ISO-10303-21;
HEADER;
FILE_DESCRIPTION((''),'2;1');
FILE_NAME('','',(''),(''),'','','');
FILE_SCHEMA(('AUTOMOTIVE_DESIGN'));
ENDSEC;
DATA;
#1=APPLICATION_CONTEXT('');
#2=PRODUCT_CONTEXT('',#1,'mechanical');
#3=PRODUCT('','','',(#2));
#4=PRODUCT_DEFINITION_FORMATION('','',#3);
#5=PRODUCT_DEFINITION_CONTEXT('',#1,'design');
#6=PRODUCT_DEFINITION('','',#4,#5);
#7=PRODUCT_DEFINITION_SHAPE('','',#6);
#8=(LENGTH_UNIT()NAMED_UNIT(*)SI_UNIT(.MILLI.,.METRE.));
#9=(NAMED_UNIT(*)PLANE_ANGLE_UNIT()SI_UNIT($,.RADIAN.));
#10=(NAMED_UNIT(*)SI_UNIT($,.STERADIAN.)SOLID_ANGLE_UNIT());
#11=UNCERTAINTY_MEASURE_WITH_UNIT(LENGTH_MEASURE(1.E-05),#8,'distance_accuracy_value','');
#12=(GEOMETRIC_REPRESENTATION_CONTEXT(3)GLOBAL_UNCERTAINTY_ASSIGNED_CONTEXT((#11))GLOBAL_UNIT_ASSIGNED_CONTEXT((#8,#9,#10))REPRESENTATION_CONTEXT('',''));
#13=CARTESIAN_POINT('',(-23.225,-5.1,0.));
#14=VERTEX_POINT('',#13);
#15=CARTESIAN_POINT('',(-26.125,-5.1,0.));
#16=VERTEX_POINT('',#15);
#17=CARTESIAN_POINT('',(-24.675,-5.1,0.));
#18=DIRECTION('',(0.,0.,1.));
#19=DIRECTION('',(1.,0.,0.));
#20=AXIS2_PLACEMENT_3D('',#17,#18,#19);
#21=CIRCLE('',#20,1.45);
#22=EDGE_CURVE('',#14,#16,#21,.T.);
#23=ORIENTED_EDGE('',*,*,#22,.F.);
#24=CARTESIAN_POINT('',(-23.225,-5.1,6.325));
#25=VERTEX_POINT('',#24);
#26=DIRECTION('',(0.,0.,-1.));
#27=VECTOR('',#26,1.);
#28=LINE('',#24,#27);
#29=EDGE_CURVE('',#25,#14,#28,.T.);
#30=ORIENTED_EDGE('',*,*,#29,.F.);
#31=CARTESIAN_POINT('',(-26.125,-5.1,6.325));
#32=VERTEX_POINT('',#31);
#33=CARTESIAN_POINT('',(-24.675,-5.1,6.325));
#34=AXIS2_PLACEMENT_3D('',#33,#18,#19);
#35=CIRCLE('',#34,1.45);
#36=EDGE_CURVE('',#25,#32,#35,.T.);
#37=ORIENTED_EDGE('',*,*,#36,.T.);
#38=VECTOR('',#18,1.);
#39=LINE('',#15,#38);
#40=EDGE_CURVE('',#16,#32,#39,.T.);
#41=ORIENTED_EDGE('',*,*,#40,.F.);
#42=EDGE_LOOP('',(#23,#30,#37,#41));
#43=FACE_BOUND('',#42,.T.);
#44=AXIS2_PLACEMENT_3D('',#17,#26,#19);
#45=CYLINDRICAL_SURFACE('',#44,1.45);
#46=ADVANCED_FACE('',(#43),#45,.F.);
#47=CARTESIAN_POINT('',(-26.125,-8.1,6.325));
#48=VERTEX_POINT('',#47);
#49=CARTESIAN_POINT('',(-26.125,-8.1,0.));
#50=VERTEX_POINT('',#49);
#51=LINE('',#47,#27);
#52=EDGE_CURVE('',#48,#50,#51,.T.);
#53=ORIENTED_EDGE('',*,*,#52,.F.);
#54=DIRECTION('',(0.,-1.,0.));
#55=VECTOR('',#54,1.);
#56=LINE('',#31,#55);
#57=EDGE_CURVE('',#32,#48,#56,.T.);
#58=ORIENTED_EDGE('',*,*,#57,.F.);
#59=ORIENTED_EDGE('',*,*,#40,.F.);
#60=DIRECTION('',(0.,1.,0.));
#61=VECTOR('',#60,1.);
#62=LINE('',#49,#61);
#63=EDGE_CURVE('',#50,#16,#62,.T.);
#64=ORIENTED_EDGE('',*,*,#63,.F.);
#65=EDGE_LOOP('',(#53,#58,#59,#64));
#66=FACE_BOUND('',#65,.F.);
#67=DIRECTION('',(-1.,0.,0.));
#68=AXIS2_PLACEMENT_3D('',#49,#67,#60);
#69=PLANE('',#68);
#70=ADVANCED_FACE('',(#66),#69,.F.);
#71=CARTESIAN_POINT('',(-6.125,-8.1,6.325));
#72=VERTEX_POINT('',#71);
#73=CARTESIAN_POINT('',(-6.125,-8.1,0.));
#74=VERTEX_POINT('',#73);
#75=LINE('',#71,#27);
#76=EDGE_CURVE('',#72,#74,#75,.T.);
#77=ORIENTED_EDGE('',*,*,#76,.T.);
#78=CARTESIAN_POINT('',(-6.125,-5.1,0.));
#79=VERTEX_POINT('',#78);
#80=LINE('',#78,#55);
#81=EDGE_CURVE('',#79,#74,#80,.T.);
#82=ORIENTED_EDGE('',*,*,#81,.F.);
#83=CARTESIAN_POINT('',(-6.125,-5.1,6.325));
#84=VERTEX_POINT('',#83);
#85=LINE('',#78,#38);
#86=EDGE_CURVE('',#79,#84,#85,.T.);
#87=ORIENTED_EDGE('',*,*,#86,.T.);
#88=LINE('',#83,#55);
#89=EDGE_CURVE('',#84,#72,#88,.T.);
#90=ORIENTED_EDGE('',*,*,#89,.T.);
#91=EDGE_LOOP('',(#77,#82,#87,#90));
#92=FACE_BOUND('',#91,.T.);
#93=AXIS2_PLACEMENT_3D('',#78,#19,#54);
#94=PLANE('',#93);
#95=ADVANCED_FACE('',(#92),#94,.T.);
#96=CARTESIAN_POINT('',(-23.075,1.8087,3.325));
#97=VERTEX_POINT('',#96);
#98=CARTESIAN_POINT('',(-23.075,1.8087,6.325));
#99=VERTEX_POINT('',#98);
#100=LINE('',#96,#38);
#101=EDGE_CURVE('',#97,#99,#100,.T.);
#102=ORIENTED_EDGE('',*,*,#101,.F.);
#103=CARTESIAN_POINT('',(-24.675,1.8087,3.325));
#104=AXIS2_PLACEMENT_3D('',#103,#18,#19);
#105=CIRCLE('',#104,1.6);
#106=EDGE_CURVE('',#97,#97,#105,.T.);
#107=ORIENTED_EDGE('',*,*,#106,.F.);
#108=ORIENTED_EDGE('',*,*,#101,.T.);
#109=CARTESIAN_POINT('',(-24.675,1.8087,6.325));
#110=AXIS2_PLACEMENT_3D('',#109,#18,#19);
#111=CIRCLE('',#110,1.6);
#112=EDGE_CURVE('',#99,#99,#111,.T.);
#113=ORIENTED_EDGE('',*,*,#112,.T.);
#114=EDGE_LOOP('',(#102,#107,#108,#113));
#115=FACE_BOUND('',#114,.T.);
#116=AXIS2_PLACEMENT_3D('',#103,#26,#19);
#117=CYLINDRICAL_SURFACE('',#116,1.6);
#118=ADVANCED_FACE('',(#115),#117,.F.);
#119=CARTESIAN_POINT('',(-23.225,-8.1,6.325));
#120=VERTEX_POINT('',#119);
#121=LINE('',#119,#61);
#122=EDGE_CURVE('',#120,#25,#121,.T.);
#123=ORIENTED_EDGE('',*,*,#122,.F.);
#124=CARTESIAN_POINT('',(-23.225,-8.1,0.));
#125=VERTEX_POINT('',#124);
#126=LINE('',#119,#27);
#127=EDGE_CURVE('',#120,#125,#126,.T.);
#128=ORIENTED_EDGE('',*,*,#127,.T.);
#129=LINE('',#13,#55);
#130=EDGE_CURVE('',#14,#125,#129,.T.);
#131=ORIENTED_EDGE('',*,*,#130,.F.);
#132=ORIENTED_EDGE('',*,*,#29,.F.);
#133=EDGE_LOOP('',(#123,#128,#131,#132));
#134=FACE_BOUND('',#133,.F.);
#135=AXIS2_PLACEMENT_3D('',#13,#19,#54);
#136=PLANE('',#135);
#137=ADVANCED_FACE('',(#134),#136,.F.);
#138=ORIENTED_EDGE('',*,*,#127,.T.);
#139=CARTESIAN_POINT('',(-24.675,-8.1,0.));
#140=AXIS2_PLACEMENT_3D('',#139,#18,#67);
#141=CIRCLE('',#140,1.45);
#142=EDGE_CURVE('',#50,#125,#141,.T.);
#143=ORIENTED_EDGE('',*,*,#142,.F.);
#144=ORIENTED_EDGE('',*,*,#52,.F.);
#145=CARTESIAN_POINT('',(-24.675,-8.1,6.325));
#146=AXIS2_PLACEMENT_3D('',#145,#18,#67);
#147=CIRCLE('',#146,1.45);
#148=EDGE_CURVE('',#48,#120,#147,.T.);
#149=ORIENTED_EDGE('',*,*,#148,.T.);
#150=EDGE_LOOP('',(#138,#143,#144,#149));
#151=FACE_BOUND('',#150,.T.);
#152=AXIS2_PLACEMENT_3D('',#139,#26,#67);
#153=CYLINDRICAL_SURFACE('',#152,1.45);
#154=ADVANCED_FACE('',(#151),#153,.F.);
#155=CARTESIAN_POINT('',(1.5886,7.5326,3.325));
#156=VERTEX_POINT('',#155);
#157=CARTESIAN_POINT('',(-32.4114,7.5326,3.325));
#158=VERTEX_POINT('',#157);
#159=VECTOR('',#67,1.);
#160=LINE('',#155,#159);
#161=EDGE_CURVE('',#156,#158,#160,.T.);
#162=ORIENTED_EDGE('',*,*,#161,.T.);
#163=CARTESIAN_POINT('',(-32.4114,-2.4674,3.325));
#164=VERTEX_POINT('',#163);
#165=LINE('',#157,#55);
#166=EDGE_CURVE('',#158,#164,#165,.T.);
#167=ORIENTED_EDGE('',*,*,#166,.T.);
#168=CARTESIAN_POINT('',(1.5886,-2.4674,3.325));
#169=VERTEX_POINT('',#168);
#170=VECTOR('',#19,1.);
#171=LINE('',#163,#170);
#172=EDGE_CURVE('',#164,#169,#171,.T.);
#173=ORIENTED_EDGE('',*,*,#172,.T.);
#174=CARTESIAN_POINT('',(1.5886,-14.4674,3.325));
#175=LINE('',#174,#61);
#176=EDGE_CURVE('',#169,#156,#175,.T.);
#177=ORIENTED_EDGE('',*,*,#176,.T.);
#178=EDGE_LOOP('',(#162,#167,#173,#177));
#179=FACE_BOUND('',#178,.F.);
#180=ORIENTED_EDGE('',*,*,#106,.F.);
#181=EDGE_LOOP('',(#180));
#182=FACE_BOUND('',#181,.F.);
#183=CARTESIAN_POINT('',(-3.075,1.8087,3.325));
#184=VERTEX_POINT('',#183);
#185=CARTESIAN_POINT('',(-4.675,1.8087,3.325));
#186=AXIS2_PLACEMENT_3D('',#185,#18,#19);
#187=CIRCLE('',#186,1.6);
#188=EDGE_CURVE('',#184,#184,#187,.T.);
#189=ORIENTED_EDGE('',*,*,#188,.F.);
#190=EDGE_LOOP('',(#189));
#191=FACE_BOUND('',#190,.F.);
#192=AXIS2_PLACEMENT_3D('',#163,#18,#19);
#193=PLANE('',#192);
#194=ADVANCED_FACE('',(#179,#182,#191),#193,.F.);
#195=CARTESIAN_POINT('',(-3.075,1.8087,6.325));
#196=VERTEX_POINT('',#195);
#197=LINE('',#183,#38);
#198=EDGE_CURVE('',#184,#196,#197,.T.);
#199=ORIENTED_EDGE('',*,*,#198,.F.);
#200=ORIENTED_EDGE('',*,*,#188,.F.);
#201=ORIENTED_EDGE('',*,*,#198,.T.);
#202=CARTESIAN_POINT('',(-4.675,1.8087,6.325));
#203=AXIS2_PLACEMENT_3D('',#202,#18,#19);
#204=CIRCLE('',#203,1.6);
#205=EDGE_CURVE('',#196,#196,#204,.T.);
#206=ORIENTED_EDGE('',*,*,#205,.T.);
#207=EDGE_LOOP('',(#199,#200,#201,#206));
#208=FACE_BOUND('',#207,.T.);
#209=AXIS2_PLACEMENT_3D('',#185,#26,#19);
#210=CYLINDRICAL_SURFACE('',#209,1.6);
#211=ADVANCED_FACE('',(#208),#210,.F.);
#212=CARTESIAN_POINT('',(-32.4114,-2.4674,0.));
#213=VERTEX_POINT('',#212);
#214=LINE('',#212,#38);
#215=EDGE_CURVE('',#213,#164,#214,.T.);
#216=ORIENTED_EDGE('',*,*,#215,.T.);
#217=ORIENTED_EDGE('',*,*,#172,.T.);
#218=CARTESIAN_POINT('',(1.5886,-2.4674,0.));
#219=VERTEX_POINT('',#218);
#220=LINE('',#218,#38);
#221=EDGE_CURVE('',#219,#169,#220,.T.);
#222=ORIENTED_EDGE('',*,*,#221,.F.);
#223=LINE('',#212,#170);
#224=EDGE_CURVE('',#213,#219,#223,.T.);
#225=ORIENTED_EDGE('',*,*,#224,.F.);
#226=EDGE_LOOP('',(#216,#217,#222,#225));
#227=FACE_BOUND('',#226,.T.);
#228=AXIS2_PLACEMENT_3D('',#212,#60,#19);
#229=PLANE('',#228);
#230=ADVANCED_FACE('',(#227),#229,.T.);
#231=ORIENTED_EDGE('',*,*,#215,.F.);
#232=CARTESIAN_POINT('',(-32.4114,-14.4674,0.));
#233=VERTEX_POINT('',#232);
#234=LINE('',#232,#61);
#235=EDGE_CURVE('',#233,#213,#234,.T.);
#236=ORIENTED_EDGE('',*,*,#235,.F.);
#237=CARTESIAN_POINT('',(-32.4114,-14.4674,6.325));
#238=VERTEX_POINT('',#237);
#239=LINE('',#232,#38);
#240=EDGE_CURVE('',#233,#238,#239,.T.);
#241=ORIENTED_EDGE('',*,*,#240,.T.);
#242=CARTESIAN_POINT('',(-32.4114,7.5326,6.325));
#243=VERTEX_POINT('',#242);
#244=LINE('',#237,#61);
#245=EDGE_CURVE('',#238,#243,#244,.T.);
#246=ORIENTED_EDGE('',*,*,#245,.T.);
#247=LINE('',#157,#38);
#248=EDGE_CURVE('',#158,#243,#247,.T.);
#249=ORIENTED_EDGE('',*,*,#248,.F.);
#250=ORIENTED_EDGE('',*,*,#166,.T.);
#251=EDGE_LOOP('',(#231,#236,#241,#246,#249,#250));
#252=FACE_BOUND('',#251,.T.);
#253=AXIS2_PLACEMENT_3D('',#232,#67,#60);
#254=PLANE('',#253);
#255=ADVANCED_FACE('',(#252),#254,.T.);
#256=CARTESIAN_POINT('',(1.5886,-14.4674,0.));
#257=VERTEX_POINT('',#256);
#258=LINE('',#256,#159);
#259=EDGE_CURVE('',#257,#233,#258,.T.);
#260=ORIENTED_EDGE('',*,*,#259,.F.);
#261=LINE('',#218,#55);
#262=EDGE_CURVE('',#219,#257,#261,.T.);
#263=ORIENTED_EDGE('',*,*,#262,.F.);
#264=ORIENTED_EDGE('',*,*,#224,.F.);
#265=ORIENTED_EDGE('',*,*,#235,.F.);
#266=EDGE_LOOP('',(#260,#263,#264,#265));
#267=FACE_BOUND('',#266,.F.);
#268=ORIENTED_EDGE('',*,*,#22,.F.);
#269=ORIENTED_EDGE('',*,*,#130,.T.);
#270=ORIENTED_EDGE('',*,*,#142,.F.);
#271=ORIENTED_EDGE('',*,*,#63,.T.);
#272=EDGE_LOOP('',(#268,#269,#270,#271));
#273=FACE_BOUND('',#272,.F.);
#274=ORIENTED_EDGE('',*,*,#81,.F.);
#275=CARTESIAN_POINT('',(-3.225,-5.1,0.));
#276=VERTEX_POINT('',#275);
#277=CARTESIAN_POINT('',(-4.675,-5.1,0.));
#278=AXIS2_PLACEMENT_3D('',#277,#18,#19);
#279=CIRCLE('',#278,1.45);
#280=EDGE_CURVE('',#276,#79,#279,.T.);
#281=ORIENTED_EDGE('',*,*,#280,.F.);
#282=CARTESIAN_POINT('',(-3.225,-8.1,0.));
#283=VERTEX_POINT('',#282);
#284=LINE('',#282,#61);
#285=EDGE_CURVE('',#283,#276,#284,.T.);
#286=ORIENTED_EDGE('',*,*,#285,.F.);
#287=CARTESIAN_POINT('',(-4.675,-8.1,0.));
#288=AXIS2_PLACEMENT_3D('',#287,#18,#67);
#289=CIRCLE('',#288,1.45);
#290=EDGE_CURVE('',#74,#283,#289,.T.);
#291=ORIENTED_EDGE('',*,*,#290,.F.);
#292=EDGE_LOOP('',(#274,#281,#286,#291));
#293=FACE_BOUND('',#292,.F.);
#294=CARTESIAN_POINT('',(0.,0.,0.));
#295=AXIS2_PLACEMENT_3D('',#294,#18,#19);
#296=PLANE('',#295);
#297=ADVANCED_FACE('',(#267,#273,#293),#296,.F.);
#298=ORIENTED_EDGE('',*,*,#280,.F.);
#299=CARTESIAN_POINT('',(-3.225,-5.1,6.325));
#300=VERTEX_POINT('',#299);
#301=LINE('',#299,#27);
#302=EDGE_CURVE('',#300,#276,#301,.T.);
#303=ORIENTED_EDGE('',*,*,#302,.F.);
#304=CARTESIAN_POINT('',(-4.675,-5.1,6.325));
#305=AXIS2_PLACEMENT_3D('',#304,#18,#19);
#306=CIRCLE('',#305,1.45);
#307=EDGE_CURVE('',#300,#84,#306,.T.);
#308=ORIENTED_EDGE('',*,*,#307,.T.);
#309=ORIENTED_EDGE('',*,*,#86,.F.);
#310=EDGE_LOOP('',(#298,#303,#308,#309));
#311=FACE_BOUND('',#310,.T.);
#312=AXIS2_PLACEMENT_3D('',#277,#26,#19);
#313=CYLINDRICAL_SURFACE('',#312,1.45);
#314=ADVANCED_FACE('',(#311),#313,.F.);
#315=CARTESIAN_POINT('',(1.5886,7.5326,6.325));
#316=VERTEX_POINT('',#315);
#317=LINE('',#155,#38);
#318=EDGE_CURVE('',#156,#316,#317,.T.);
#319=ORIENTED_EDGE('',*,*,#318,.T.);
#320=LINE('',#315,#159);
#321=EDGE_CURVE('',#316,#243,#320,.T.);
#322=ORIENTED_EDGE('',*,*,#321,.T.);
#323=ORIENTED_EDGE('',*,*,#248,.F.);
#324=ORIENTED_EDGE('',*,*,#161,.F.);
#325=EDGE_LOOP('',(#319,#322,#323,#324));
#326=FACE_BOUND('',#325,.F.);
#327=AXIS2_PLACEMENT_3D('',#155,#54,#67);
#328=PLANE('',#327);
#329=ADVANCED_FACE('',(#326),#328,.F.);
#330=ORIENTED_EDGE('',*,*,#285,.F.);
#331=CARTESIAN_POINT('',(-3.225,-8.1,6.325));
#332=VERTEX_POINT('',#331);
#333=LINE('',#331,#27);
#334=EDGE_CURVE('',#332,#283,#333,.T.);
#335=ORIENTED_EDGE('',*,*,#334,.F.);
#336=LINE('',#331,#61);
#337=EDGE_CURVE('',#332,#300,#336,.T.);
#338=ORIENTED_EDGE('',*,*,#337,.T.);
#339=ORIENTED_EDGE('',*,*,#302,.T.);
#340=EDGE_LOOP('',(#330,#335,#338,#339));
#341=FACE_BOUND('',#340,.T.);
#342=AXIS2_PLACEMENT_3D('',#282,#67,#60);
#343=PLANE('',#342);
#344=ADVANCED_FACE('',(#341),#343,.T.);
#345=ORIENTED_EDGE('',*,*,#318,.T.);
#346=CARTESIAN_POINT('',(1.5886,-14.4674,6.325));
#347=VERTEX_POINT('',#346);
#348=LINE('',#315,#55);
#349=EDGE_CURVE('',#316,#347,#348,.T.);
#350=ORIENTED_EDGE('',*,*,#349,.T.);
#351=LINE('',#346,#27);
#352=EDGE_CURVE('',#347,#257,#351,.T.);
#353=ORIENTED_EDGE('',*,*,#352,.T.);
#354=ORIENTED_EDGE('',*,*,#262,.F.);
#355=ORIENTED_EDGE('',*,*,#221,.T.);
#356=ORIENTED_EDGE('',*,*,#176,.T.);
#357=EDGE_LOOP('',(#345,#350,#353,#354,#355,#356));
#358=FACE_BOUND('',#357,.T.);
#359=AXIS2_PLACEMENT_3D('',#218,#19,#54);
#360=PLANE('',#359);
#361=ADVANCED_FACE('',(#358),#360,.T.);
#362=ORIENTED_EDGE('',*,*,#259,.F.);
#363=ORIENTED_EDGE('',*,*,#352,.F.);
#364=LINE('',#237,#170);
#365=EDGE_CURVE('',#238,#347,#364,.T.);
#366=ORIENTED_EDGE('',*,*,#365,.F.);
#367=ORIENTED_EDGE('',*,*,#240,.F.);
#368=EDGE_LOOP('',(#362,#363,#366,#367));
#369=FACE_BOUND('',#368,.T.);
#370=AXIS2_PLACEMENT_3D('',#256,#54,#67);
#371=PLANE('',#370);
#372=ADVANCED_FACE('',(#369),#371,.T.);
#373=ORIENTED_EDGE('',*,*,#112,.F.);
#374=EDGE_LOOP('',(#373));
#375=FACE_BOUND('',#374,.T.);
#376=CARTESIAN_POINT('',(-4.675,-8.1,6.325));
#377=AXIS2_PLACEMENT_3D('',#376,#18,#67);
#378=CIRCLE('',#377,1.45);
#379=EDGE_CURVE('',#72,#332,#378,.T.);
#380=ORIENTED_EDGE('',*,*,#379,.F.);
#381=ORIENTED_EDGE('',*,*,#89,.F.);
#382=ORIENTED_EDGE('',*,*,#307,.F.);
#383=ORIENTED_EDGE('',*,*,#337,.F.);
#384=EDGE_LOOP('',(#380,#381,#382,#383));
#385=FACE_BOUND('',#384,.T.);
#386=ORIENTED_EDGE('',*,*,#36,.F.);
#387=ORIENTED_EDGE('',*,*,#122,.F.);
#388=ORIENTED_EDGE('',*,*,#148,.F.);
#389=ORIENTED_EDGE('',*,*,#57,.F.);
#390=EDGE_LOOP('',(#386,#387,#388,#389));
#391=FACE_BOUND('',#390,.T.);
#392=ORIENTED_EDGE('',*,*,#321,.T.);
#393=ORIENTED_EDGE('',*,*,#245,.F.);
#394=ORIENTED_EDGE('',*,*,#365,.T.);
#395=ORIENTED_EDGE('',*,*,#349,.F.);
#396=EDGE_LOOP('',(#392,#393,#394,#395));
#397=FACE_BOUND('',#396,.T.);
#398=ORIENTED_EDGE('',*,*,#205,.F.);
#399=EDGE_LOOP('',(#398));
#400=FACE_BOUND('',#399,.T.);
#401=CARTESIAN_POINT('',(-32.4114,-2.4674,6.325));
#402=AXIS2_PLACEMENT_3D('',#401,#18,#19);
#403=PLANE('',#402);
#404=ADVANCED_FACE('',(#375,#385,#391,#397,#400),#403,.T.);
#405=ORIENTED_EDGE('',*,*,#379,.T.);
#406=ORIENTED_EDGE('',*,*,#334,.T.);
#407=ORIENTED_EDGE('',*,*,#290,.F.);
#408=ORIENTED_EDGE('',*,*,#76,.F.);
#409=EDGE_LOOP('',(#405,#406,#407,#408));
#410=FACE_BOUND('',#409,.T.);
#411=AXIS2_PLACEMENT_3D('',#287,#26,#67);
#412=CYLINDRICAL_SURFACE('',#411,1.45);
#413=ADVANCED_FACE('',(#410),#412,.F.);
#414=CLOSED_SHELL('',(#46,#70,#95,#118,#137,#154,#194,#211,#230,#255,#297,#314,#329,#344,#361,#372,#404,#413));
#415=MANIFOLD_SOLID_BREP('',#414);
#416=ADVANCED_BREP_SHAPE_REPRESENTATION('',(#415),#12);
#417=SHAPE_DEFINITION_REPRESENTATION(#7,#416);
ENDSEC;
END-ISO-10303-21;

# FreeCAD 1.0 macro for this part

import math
import FreeCAD as App
import Part
import Sketcher
Q = App.Units.Quantity

doc = App.newDocument("Part")
body = doc.addObject("PartDesign::Body", "Body")

# Sketch on XY plane
sketch1 = body.newObject("Sketcher::SketchObject", "Sketch")
sketch1.AttachmentSupport = (doc.getObject("XY_Plane"), [""])
sketch1.MapMode = "FlatFace"
sketch1.addGeometry([
    Part.LineSegment(App.Vector(1.5886, -2.4674, 0), App.Vector(-32.4114, -2.4674, 0)),  # 0
    Part.LineSegment(App.Vector(-32.4114, -2.4674, 0), App.Vector(-32.4114, -14.4674, 0)),  # 1
    Part.LineSegment(App.Vector(-32.4114, -14.4674, 0), App.Vector(1.5886, -14.4674, 0)),  # 2
    Part.LineSegment(App.Vector(1.5886, -14.4674, 0), App.Vector(1.5886, -2.4674, 0)),  # 3
    Part.LineSegment(App.Vector(-26.125, -8.1, 0), App.Vector(-26.125, -5.1, 0)),  # 4
    Part.ArcOfCircle(Part.Circle(App.Vector(-24.675, -5.1, 0), App.Vector(0, 0, 1), 1.45), math.radians(0), math.radians(180)),  # 5
    Part.LineSegment(App.Vector(-23.225, -5.1, 0), App.Vector(-23.225, -8.1, 0)),  # 6
    Part.ArcOfCircle(Part.Circle(App.Vector(-24.675, -8.1, 0), App.Vector(0, 0, 1), 1.45), math.radians(180), math.radians(360)),  # 7
    Part.LineSegment(App.Vector(-6.125, -8.1, 0), App.Vector(-6.125, -5.1, 0)),  # 8
    Part.ArcOfCircle(Part.Circle(App.Vector(-4.675, -5.1, 0), App.Vector(0, 0, 1), 1.45), math.radians(0), math.radians(180)),  # 9
    Part.LineSegment(App.Vector(-3.225, -5.1, 0), App.Vector(-3.225, -8.1, 0)),  # 10
    Part.ArcOfCircle(Part.Circle(App.Vector(-4.675, -8.1, 0), App.Vector(0, 0, 1), 1.45), math.radians(180), math.radians(360)),  # 11
], False)
sketch1.addConstraint([
    Sketcher.Constraint("Coincident", 0, 2, 1, 1),
    Sketcher.Constraint("Coincident", 1, 2, 2, 1),
    Sketcher.Constraint("Coincident", 2, 2, 3, 1),
    Sketcher.Constraint("Coincident", 3, 2, 0, 1),
    Sketcher.Constraint("Tangent", 4, 2, 5, 2),
    Sketcher.Constraint("Tangent", 5, 1, 6, 1),
    Sketcher.Constraint("Tangent", 6, 2, 7, 2),
    Sketcher.Constraint("Tangent", 7, 1, 4, 1),
    Sketcher.Constraint("Tangent", 8, 2, 9, 2),
    Sketcher.Constraint("Tangent", 9, 1, 10, 1),
    Sketcher.Constraint("Tangent", 10, 2, 11, 2),
    Sketcher.Constraint("Tangent", 11, 1, 8, 1),
    Sketcher.Constraint("Horizontal", 0),
    Sketcher.Constraint("Vertical", 1),
    Sketcher.Constraint("Horizontal", 2),
    Sketcher.Constraint("Vertical", 3),
    Sketcher.Constraint("Vertical", 4),
    Sketcher.Constraint("Vertical", 6),
    Sketcher.Constraint("Vertical", 8),
    Sketcher.Constraint("Vertical", 10),
    Sketcher.Constraint("Equal", 7, 9),
    Sketcher.Constraint("Horizontal", 5, 3, 9, 3),
    Sketcher.Constraint("Horizontal", 7, 3, 11, 3),
    Sketcher.Constraint("DistanceX", 0, 2, 0, 1, Q("34 mm")),
    Sketcher.Constraint("DistanceY", 1, 2, 1, 1, Q("12 mm")),
    Sketcher.Constraint("DistanceY", 4, 1, 4, 2, Q("3 mm")),
    Sketcher.Constraint("Radius", 5, Q("1.45 mm")),
    Sketcher.Constraint("DistanceX", 5, 3, 9, 3, Q("20 mm")),
    Sketcher.Constraint("DistanceY", 5, 3, -1, 1, Q("5.1 mm")),
    Sketcher.Constraint("DistanceX", 5, 3, -1, 1, Q("24.675 mm")),
    Sketcher.Constraint("DistanceX", 0, 2, -1, 1, Q("32.4114 mm")),
    Sketcher.Constraint("DistanceY", 0, 2, -1, 1, Q("2.4674 mm")),
])
pad1 = body.newObject("PartDesign::Pad", "Pad")
pad1.Profile = sketch1
pad1.Length = 3.325

# Sketch on XY plane
sketch2 = body.newObject("Sketcher::SketchObject", "Sketch001")
sketch2.AttachmentSupport = (doc.getObject("XY_Plane"), [""])
sketch2.MapMode = "FlatFace"
sketch2.AttachmentOffset = App.Placement(App.Vector(0, 0, 3.325), App.Rotation())
sketch2.addGeometry([
    Part.LineSegment(App.Vector(1.5886, 7.5326, 0), App.Vector(-32.4114, 7.5326, 0)),  # 0
    Part.LineSegment(App.Vector(-32.4114, 7.5326, 0), App.Vector(-32.4114, -14.4674, 0)),  # 1
    Part.LineSegment(App.Vector(-32.4114, -14.4674, 0), App.Vector(1.5886, -14.4674, 0)),  # 2
    Part.LineSegment(App.Vector(1.5886, -14.4674, 0), App.Vector(1.5886, 7.5326, 0)),  # 3
    Part.Circle(App.Vector(-24.675, 1.8087, 0), App.Vector(0, 0, 1), 1.6),  # 4
    Part.Circle(App.Vector(-4.675, 1.8087, 0), App.Vector(0, 0, 1), 1.6),  # 5
    Part.LineSegment(App.Vector(-3.225, -5.1, 0), App.Vector(-3.225, -8.1, 0)),  # 6
    Part.ArcOfCircle(Part.Circle(App.Vector(-4.675, -8.1, 0), App.Vector(0, 0, 1), 1.45), math.radians(180), math.radians(360)),  # 7
    Part.LineSegment(App.Vector(-6.125, -8.1, 0), App.Vector(-6.125, -5.1, 0)),  # 8
    Part.ArcOfCircle(Part.Circle(App.Vector(-4.675, -5.1, 0), App.Vector(0, 0, 1), 1.45), math.radians(0), math.radians(180)),  # 9
    Part.ArcOfCircle(Part.Circle(App.Vector(-24.675, -8.1, 0), App.Vector(0, 0, 1), 1.45), math.radians(180), math.radians(360)),  # 10
    Part.LineSegment(App.Vector(-26.125, -8.1, 0), App.Vector(-26.125, -5.1, 0)),  # 11
    Part.ArcOfCircle(Part.Circle(App.Vector(-24.675, -5.1, 0), App.Vector(0, 0, 1), 1.45), math.radians(0), math.radians(180)),  # 12
    Part.LineSegment(App.Vector(-23.225, -5.1, 0), App.Vector(-23.225, -8.1, 0)),  # 13
], False)
sketch2.addConstraint([
    Sketcher.Constraint("Coincident", 0, 2, 1, 1),
    Sketcher.Constraint("Coincident", 1, 2, 2, 1),
    Sketcher.Constraint("Coincident", 2, 2, 3, 1),
    Sketcher.Constraint("Coincident", 3, 2, 0, 1),
    Sketcher.Constraint("Tangent", 6, 2, 7, 2),
    Sketcher.Constraint("Tangent", 7, 1, 8, 1),
    Sketcher.Constraint("Tangent", 8, 2, 9, 2),
    Sketcher.Constraint("Tangent", 9, 1, 6, 1),
    Sketcher.Constraint("Tangent", 10, 1, 11, 1),
    Sketcher.Constraint("Tangent", 11, 2, 12, 2),
    Sketcher.Constraint("Tangent", 12, 1, 13, 1),
    Sketcher.Constraint("Tangent", 13, 2, 10, 2),
    Sketcher.Constraint("Horizontal", 0),
    Sketcher.Constraint("Vertical", 1),
    Sketcher.Constraint("Horizontal", 2),
    Sketcher.Constraint("Vertical", 3),
    Sketcher.Constraint("Vertical", 6),
    Sketcher.Constraint("Vertical", 8),
    Sketcher.Constraint("Vertical", 11),
    Sketcher.Constraint("Vertical", 13),
    Sketcher.Constraint("Equal", 4, 5),
    Sketcher.Constraint("Equal", 9, 10),
    Sketcher.Constraint("Horizontal", 4, 3, 5, 3),
    Sketcher.Constraint("Horizontal", 7, 3, 10, 3),
    Sketcher.Constraint("Horizontal", 9, 3, 12, 3),
    Sketcher.Constraint("Vertical", 5, 3, 7, 3),
    Sketcher.Constraint("Vertical", 4, 3, 10, 3),
    Sketcher.Constraint("Diameter", 4, Q("3.2 mm")),
    Sketcher.Constraint("DistanceX", 0, 2, 0, 1, Q("34 mm")),
    Sketcher.Constraint("DistanceY", 1, 2, 1, 1, Q("22 mm")),
    Sketcher.Constraint("DistanceY", 6, 2, 6, 1, Q("3 mm")),
    Sketcher.Constraint("Radius", 7, Q("1.45 mm")),
    Sketcher.Constraint("DistanceX", 4, 3, 5, 3, Q("20 mm")),
    Sketcher.Constraint("DistanceY", 7, 3, -1, 1, Q("8.1 mm")),
    Sketcher.Constraint("DistanceX", 4, 3, -1, 1, Q("24.675 mm")),
    Sketcher.Constraint("DistanceY", 4, 3, 0, 2, Q("5.724 mm")),
    Sketcher.Constraint("DistanceY", -1, 1, 4, 3, Q("1.8087 mm")),
    Sketcher.Constraint("DistanceX", 0, 2, -1, 1, Q("32.4114 mm")),
])
pad2 = body.newObject("PartDesign::Pad", "Pad001")
pad2.Profile = sketch2
pad2.Length = 3

doc.recompute()
